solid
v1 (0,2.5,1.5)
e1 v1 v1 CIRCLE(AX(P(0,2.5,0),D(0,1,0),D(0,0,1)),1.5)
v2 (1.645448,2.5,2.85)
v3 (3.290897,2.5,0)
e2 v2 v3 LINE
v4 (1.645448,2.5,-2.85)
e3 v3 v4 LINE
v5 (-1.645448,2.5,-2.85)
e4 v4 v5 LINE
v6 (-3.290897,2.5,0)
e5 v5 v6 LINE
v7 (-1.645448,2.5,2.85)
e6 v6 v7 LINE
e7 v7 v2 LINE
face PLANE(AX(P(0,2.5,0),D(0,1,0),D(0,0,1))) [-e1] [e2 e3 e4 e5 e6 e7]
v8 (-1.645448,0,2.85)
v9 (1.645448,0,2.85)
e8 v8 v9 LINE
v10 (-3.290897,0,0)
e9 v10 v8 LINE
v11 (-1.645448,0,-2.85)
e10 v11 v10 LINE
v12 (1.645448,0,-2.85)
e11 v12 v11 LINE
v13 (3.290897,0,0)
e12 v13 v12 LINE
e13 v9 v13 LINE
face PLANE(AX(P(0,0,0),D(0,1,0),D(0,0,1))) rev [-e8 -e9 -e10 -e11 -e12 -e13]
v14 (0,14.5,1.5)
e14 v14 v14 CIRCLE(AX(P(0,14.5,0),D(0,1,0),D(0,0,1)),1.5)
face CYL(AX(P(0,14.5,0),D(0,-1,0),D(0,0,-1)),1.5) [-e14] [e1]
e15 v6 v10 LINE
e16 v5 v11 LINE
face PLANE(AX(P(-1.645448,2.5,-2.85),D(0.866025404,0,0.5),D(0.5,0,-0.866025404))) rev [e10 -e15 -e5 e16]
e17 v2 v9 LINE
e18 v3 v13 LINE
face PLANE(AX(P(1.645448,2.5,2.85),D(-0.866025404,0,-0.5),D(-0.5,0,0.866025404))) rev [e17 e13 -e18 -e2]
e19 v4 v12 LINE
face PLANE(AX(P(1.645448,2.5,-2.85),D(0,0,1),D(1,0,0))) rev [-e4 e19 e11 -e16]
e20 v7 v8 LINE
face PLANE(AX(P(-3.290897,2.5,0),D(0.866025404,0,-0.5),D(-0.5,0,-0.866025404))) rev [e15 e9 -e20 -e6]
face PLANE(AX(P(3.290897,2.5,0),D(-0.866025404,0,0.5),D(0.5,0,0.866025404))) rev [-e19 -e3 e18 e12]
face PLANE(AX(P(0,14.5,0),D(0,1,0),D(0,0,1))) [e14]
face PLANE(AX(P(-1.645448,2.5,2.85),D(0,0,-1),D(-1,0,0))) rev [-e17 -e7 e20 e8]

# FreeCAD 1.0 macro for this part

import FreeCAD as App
import Part
import Sketcher
from FreeCAD import Vector
Q = App.Units.Quantity


def add_polygon(sketch, points):
    """Adds a closed chain of lines whose ends are joined by coincident constraints."""
    first, n = sketch.GeometryCount, len(points)
    for a, b in zip(points, points[1:] + points[:1]):
        sketch.addGeometry(Part.LineSegment(App.Vector(*a, 0), App.Vector(*b, 0)), False)
    for i in range(n):
        sketch.addConstraint(Sketcher.Constraint("Coincident", first + i, 2, first + (i + 1) % n, 1))

doc = App.newDocument("Part")
body = doc.addObject("PartDesign::Body", "Body")

# Sketch on XZ plane
sketch1 = doc.addObject("Sketcher::SketchObject", "Sketch")
body.addObject(sketch1)
sketch1.AttachmentSupport = (doc.XZ_Plane, [""])
sketch1.MapMode = "FlatFace"
add_polygon(sketch1, [(3.3, 0), (1.6, -2.9), (-1.6, -2.9), (-3.3, 0), (-1.6, 2.9), (1.6, 2.9)])  # lines 0-5
sketch1.addConstraint([
    Sketcher.Constraint("Horizontal", 1),
    Sketcher.Constraint("Horizontal", 4),
    Sketcher.Constraint("Symmetric", 0, 2, 3, 2, -1, 1),
    Sketcher.Constraint("Symmetric", 2, 2, 5, 2, -1, 1),
    Sketcher.Constraint("PointOnObject", 2, 2, -1),
    Sketcher.Constraint("Parallel", 2, 5),
    Sketcher.Constraint("Vertical", 1, 2, 3, 2),
    Sketcher.Constraint("Angle", 0, Q("-120 deg")),
    Sketcher.Constraint("DistanceY", 1, 2, 3, 2, Q("5.7 mm")),
    Sketcher.Constraint("DistanceX", 1, 2, 1, 1, Q("3.290897 mm")),
])
pad1 = doc.addObject("PartDesign::Pad", "Pad")
body.addObject(pad1)
pad1.Profile = sketch1
pad1.Length = 2.5
pad1.Reversed = True

# Sketch on XZ plane
sketch2 = doc.addObject("Sketcher::SketchObject", "Sketch001")
body.addObject(sketch2)
sketch2.AttachmentSupport = (doc.XZ_Plane, [""])
sketch2.MapMode = "FlatFace"
sketch2.AttachmentOffset = App.Placement(Vector(0, 0, -2.5), App.Rotation())
sketch2.addGeometry(Part.Circle(Vector(0, 0, 0), Vector(0, 0, 1), 1.5), False)
sketch2.addConstraint([
    Sketcher.Constraint("Coincident", 0, 3, -1, 1),
    Sketcher.Constraint("Diameter", 0, Q("3 mm")),
])
pad2 = doc.addObject("PartDesign::Pad", "Pad001")
body.addObject(pad2)
pad2.Profile = sketch2
pad2.Length = 12
pad2.Reversed = True

doc.recompute()
